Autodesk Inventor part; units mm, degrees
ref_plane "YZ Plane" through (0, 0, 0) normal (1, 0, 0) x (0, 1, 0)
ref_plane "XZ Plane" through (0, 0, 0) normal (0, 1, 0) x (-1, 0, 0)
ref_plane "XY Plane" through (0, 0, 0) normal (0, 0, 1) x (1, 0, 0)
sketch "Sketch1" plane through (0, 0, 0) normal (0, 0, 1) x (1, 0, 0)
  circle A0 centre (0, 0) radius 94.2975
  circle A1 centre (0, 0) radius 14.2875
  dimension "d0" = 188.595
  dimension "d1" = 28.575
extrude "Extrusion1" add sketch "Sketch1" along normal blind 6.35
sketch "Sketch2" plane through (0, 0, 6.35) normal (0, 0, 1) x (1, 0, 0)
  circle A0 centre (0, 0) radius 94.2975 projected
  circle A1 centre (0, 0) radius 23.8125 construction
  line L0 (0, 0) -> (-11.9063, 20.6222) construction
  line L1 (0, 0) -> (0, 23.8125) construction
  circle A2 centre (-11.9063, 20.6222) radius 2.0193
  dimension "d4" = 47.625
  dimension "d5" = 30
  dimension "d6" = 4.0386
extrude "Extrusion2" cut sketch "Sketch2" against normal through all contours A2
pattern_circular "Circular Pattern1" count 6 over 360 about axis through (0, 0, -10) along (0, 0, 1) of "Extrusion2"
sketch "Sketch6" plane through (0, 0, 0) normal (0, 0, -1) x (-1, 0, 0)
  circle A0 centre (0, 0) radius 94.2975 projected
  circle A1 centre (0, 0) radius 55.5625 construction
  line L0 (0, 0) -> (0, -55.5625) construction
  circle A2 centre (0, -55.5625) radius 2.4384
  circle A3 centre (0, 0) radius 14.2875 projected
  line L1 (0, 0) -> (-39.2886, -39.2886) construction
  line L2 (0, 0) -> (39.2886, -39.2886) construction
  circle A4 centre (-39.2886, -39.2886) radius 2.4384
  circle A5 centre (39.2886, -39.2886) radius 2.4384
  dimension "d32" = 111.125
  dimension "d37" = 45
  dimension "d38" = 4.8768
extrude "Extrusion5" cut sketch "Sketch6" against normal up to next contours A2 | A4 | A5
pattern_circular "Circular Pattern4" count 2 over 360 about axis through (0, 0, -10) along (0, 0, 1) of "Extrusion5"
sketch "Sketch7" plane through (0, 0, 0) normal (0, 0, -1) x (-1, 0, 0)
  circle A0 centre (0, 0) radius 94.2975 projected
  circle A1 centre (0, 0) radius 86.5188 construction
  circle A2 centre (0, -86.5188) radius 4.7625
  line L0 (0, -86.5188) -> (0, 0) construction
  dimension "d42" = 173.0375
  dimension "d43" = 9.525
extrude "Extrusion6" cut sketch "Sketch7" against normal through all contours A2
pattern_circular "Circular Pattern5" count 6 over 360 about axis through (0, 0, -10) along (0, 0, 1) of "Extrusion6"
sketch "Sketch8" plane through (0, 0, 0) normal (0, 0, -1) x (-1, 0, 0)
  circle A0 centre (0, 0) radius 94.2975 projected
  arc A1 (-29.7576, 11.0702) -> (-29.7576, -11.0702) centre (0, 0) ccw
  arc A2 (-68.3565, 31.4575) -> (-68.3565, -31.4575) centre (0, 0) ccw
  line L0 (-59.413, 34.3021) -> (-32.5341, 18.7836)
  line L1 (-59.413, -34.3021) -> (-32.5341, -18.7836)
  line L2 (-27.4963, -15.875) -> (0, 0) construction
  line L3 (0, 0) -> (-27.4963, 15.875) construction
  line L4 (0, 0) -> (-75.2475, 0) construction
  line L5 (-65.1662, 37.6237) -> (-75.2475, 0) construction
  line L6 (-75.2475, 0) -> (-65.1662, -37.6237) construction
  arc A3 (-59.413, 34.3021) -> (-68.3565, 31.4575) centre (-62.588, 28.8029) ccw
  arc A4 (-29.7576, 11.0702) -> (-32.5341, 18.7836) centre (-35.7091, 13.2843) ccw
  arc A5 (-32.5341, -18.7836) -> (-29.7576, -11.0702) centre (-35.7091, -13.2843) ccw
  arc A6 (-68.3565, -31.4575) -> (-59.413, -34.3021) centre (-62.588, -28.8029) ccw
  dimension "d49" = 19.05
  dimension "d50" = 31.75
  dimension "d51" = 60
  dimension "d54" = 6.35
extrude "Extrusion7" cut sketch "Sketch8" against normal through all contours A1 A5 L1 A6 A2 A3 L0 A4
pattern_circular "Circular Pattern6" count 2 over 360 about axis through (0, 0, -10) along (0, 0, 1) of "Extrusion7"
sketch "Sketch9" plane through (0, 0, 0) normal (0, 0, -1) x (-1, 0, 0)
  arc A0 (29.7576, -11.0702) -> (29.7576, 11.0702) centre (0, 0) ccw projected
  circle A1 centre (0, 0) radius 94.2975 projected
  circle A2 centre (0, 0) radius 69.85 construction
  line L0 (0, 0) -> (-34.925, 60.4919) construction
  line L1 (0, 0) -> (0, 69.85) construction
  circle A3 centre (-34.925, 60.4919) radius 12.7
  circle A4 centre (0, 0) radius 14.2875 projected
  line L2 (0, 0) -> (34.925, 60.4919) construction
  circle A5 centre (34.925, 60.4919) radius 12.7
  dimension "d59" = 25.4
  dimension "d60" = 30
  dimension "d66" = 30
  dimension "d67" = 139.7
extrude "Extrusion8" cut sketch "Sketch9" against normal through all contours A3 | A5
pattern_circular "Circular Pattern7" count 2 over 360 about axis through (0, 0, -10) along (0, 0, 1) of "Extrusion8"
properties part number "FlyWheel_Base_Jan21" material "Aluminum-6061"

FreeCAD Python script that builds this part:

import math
import FreeCAD as App
import Part
import Sketcher

V = App.Vector
Q = App.Units.Quantity

doc = App.newDocument("Part")
body = doc.addObject("PartDesign::Body", "Body")

# Sketch on XY plane
sketch1 = body.newObject("Sketcher::SketchObject", "Sketch")
sketch1.AttachmentSupport = (doc.getObject("XY_Plane"), [""])
sketch1.MapMode = "FlatFace"
sketch1.addGeometry(Part.Circle(V(0, 0, 0), V(0, 0, 1), 94), False)
sketch1.addGeometry(Part.Circle(V(0, 0, 0), V(0, 0, 1), 14), False)
sketch1.addConstraint(Sketcher.Constraint("Coincident", 0, 3, -1, 1))
sketch1.addConstraint(Sketcher.Constraint("Coincident", 1, 3, -1, 1))
sketch1.addConstraint(Sketcher.Constraint("Diameter", 0, Q("7.425 in")))
sketch1.addConstraint(Sketcher.Constraint("Diameter", 1, Q("1.125 in")))
pad1 = body.newObject("PartDesign::Pad", "Pad")
pad1.Profile = sketch1
pad1.Length = Q("0.25 in")

# Sketch on XY plane
sketch2 = body.newObject("Sketcher::SketchObject", "Sketch001")
sketch2.AttachmentSupport = (doc.getObject("XY_Plane"), [""])
sketch2.MapMode = "FlatFace"
sketch2.AttachmentOffset = App.Placement(V(0, 0, 0.25 * 25.4), App.Rotation())
sketch2.addGeometry(Part.Circle(V(-11.9, 20.6, 0), V(0, 0, 1), 2), False)
sketch2.addConstraint(Sketcher.Constraint("Diameter", 0, Q("0.159 in")))
sketch2.addConstraint(Sketcher.Constraint("DistanceX", 0, 3, -1, 1, Q("0.468752 in")))
sketch2.addConstraint(Sketcher.Constraint("DistanceY", -1, 1, 0, 3, Q("0.8119 in")))
pocket1 = body.newObject("PartDesign::Pocket", "Pocket")
pocket1.Profile = sketch2
pocket1.Type = "ThroughAll"
doc.recompute()

polarpattern = body.newObject("PartDesign::PolarPattern", "PolarPattern")
polarpattern.Originals = [pocket1]
polarpattern.Axis = (doc.getObject("Z_Axis"), [""])
polarpattern.Angle = 360
polarpattern.Occurrences = 6
body.Tip = polarpattern

# Sketch on XY plane
sketch3 = body.newObject("Sketcher::SketchObject", "Sketch002")
sketch3.AttachmentSupport = (doc.getObject("XY_Plane"), [""])
sketch3.MapMode = "FlatFace"
sketch3.addGeometry(Part.Circle(V(0, -55.6, 0), V(0, 0, 1), 2.4), False)
sketch3.addGeometry(Part.Circle(V(39.3, -39.3, 0), V(0, 0, 1), 2.4), False)
sketch3.addGeometry(Part.Circle(V(-39.3, -39.3, 0), V(0, 0, 1), 2.4), False)
sketch3.addConstraint(Sketcher.Constraint("Equal", 0, 1))
sketch3.addConstraint(Sketcher.Constraint("Equal", 1, 2))
sketch3.addConstraint(Sketcher.Constraint("Symmetric", 1, 3, 2, 3, -2))
sketch3.addConstraint(Sketcher.Constraint("PointOnObject", 0, 3, -2))
sketch3.addConstraint(Sketcher.Constraint("Diameter", 0, Q("0.192 in")))
sketch3.addConstraint(Sketcher.Constraint("DistanceY", 0, 3, -1, 1, Q("2.1875 in")))
sketch3.addConstraint(Sketcher.Constraint("DistanceX", -1, 1, 1, 3, Q("1.5468 in")))
sketch3.addConstraint(Sketcher.Constraint("DistanceY", 1, 3, -1, 1, Q("1.5468 in")))
pocket2 = body.newObject("PartDesign::Pocket", "Pocket001")
pocket2.Profile = sketch3
pocket2.Type = "UpToFirst"
pocket2.Reversed = True
doc.recompute()

polarpattern2 = body.newObject("PartDesign::PolarPattern", "PolarPattern001")
polarpattern2.Originals = [pocket2]
polarpattern2.Axis = (doc.getObject("Z_Axis"), [""])
polarpattern2.Angle = 360
polarpattern2.Occurrences = 2
body.Tip = polarpattern2

# Sketch on XY plane
sketch4 = body.newObject("Sketcher::SketchObject", "Sketch003")
sketch4.AttachmentSupport = (doc.getObject("XY_Plane"), [""])
sketch4.MapMode = "FlatFace"
sketch4.addGeometry(Part.Circle(V(0, -86.5, 0), V(0, 0, 1), 4.8), False)
sketch4.addConstraint(Sketcher.Constraint("PointOnObject", 0, 3, -2))
sketch4.addConstraint(Sketcher.Constraint("Diameter", 0, Q("0.375 in")))
sketch4.addConstraint(Sketcher.Constraint("DistanceY", 0, 3, -1, 1, Q("3.406252 in")))
pocket3 = body.newObject("PartDesign::Pocket", "Pocket002")
pocket3.Profile = sketch4
pocket3.Type = "ThroughAll"
pocket3.Reversed = True
doc.recompute()

polarpattern3 = body.newObject("PartDesign::PolarPattern", "PolarPattern002")
polarpattern3.Originals = [pocket3]
polarpattern3.Axis = (doc.getObject("Z_Axis"), [""])
polarpattern3.Angle = 360
polarpattern3.Occurrences = 6
body.Tip = polarpattern3

# Sketch on XY plane
sketch5 = body.newObject("Sketcher::SketchObject", "Sketch004")
sketch5.AttachmentSupport = (doc.getObject("XY_Plane"), [""])
sketch5.MapMode = "FlatFace"
sketch5.addGeometry(Part.ArcOfCircle(Part.Circle(V(0, 0, 0), V(0, 0, 1), 32), math.radians(-20), math.radians(20)), False)
sketch5.addGeometry(Part.ArcOfCircle(Part.Circle(V(36, 13, 0), V(0, 0, 1), 6), math.radians(120), math.radians(200)), False)
sketch5.addGeometry(Part.LineSegment(V(33, 19, 0), V(59, 34, 0)), False)
sketch5.addGeometry(Part.ArcOfCircle(Part.Circle(V(63, 29, 0), V(0, 0, 1), 6), math.radians(25), math.radians(120)), False)
sketch5.addGeometry(Part.ArcOfCircle(Part.Circle(V(0, 0, 0), V(0, 0, 1), 75), math.radians(-25), math.radians(25)), False)
sketch5.addGeometry(Part.ArcOfCircle(Part.Circle(V(63, -29, 0), V(0, 0, 1), 6), math.radians(-120), math.radians(-25)), False)
sketch5.addGeometry(Part.LineSegment(V(59, -34, 0), V(33, -19, 0)), False)
sketch5.addGeometry(Part.ArcOfCircle(Part.Circle(V(36, -13, 0), V(0, 0, 1), 6), math.radians(160), math.radians(240)), False)
sketch5.addConstraint(Sketcher.Constraint("Tangent", 0, 2, 1, 2))
sketch5.addConstraint(Sketcher.Constraint("Tangent", 1, 1, 2, 1))
sketch5.addConstraint(Sketcher.Constraint("Tangent", 2, 2, 3, 2))
sketch5.addConstraint(Sketcher.Constraint("Tangent", 3, 1, 4, 2))
sketch5.addConstraint(Sketcher.Constraint("Tangent", 4, 1, 5, 2))
sketch5.addConstraint(Sketcher.Constraint("Tangent", 5, 1, 6, 1))
sketch5.addConstraint(Sketcher.Constraint("Tangent", 6, 2, 7, 2))
sketch5.addConstraint(Sketcher.Constraint("Tangent", 7, 1, 0, 1))
sketch5.addConstraint(Sketcher.Constraint("Coincident", 0, 3, -1, 1))
sketch5.addConstraint(Sketcher.Constraint("Coincident", 4, 3, -1, 1))
sketch5.addConstraint(Sketcher.Constraint("Equal", 1, 3))
sketch5.addConstraint(Sketcher.Constraint("Equal", 3, 5))
sketch5.addConstraint(Sketcher.Constraint("Equal", 5, 7))
sketch5.addConstraint(Sketcher.Constraint("Symmetric", 2, 2, 5, 1, -1))
sketch5.addConstraint(Sketcher.Constraint("Radius", 0, Q("1.25 in")))
sketch5.addConstraint(Sketcher.Constraint("Radius", 1, Q("0.25 in")))
sketch5.addConstraint(Sketcher.Constraint("Angle", 2, Q("30 deg")))
sketch5.addConstraint(Sketcher.Constraint("Radius", 4, Q("2.9625 in")))
sketch5.addConstraint(Sketcher.Constraint("DistanceY", -1, 1, 1, 3, Q("0.523 in")))
pocket4 = body.newObject("PartDesign::Pocket", "Pocket003")
pocket4.Profile = sketch5
pocket4.Type = "ThroughAll"
pocket4.Reversed = True
doc.recompute()

polarpattern4 = body.newObject("PartDesign::PolarPattern", "PolarPattern003")
polarpattern4.Originals = [pocket4]
polarpattern4.Axis = (doc.getObject("Z_Axis"), [""])
polarpattern4.Angle = 360
polarpattern4.Occurrences = 2
body.Tip = polarpattern4

# Sketch on XY plane
sketch6 = body.newObject("Sketcher::SketchObject", "Sketch005")
sketch6.AttachmentSupport = (doc.getObject("XY_Plane"), [""])
sketch6.MapMode = "FlatFace"
sketch6.addGeometry(Part.Circle(V(35, 60, 0), V(0, 0, 1), 13), False)
sketch6.addGeometry(Part.Circle(V(-35, 60, 0), V(0, 0, 1), 13), False)
sketch6.addConstraint(Sketcher.Constraint("Equal", 0, 1))
sketch6.addConstraint(Sketcher.Constraint("Symmetric", 0, 3, 1, 3, -2))
sketch6.addConstraint(Sketcher.Constraint("Diameter", 0, Q("1 in")))
sketch6.addConstraint(Sketcher.Constraint("DistanceX", 1, 3, 0, 3, Q("2.75 in")))
sketch6.addConstraint(Sketcher.Constraint("DistanceY", -1, 1, 0, 3, 60.492))
pocket5 = body.newObject("PartDesign::Pocket", "Pocket004")
pocket5.Profile = sketch6
pocket5.Type = "ThroughAll"
pocket5.Reversed = True
doc.recompute()

polarpattern5 = body.newObject("PartDesign::PolarPattern", "PolarPattern004")
polarpattern5.Originals = [pocket5]
polarpattern5.Axis = (doc.getObject("Z_Axis"), [""])
polarpattern5.Angle = 360
polarpattern5.Occurrences = 2
body.Tip = polarpattern5

doc.recompute()
